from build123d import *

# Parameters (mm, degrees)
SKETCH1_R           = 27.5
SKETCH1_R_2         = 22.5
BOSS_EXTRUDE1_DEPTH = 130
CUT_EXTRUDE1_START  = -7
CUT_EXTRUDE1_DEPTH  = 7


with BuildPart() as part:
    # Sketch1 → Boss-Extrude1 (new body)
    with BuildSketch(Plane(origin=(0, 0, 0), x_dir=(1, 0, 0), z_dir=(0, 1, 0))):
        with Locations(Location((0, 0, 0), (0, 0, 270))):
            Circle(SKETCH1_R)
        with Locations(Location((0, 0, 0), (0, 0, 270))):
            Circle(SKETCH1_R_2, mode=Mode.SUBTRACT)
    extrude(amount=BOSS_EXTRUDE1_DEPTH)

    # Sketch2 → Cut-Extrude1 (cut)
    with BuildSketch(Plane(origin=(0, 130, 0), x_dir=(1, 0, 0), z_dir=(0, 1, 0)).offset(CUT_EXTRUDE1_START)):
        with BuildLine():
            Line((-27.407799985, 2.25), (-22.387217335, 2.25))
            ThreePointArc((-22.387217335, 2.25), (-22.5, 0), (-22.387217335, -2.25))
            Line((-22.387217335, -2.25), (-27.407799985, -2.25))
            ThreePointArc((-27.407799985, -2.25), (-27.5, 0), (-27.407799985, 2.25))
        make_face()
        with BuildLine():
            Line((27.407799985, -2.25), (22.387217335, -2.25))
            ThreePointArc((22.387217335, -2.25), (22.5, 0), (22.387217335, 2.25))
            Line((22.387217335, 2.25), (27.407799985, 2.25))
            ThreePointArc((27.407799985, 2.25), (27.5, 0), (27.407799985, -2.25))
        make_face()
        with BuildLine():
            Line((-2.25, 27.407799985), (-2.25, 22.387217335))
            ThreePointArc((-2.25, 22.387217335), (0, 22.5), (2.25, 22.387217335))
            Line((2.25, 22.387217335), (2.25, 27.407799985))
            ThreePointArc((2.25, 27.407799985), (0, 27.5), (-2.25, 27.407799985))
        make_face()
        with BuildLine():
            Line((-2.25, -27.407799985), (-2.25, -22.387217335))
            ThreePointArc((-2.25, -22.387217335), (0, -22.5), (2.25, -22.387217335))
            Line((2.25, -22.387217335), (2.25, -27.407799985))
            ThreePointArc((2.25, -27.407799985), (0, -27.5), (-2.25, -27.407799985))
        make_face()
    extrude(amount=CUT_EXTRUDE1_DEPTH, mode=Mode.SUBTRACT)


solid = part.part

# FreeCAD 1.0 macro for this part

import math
import FreeCAD as App
import Part
import Sketcher

V = App.Vector
Q = App.Units.Quantity

doc = App.newDocument("Part")
body = doc.addObject("PartDesign::Body", "Body")

# Sketch on XZ plane
sketch1 = doc.addObject("Sketcher::SketchObject", "Sketch")
body.addObject(sketch1)
sketch1.AttachmentSupport = (doc.XZ_Plane, [""])
sketch1.MapMode = "FlatFace"
sketch1.addGeometry(Part.Circle(V(0, 0, 0), V(0, 0, 1), 27.5), False)
sketch1.addGeometry(Part.Circle(V(0, 0, 0), V(0, 0, 1), 22.5), False)
sketch1.addConstraint(Sketcher.Constraint("Coincident", 0, 3, -1, 1))
sketch1.addConstraint(Sketcher.Constraint("Coincident", 1, 3, -1, 1))
sketch1.addConstraint(Sketcher.Constraint("Diameter", 0, Q("55 mm")))
sketch1.addConstraint(Sketcher.Constraint("Diameter", 1, Q("45 mm")))
pad1 = doc.addObject("PartDesign::Pad", "Pad")
body.addObject(pad1)
pad1.Profile = sketch1
pad1.Length = 130
pad1.Reversed = True

# Sketch on XZ plane
sketch2 = doc.addObject("Sketcher::SketchObject", "Sketch001")
body.addObject(sketch2)
sketch2.AttachmentSupport = (doc.XZ_Plane, [""])
sketch2.MapMode = "FlatFace"
sketch2.AttachmentOffset = App.Placement(V(0, 0, -123), App.Rotation())
sketch2.addGeometry(Part.LineSegment(V(-22.387217, -2.25, 0), V(-27.4078, -2.25, 0)), False)
sketch2.addGeometry(Part.ArcOfCircle(Part.Circle(V(0, 0, 0), V(0, 0, 1), 27.5), math.radians(175.306917), math.radians(184.693083)), False)
sketch2.addGeometry(Part.LineSegment(V(-27.4078, 2.25, 0), V(-22.387217, 2.25, 0)), False)
sketch2.addGeometry(Part.ArcOfCircle(Part.Circle(V(0, 0, 0), V(0, 0, 1), 22.5), math.radians(174.26083), math.radians(185.73917)), False)
sketch2.addGeometry(Part.LineSegment(V(22.387217, 2.25, 0), V(27.4078, 2.25, 0)), False)
sketch2.addGeometry(Part.ArcOfCircle(Part.Circle(V(0, 0, 0), V(0, 0, 1), 27.5), math.radians(-4.693083), math.radians(4.693083)), False)
sketch2.addGeometry(Part.LineSegment(V(27.4078, -2.25, 0), V(22.387217, -2.25, 0)), False)
sketch2.addGeometry(Part.ArcOfCircle(Part.Circle(V(0, 0, 0), V(0, 0, 1), 22.5), math.radians(-5.73917), math.radians(5.73917)), False)
sketch2.addGeometry(Part.LineSegment(V(-2.25, -27.4078, 0), V(-2.25, -22.387217, 0)), False)
sketch2.addGeometry(Part.ArcOfCircle(Part.Circle(V(0, 0, 0), V(0, 0, 1), 22.5), math.radians(-95.73917), math.radians(-84.26083)), False)
sketch2.addGeometry(Part.LineSegment(V(2.25, -22.387217, 0), V(2.25, -27.4078, 0)), False)
sketch2.addGeometry(Part.ArcOfCircle(Part.Circle(V(0, 0, 0), V(0, 0, 1), 27.5), math.radians(-94.693083), math.radians(-85.306917)), False)
sketch2.addGeometry(Part.LineSegment(V(-2.25, 22.387217, 0), V(-2.25, 27.4078, 0)), False)
sketch2.addGeometry(Part.ArcOfCircle(Part.Circle(V(0, 0, 0), V(0, 0, 1), 27.5), math.radians(85.306917), math.radians(94.693083)), False)
sketch2.addGeometry(Part.LineSegment(V(2.25, 27.4078, 0), V(2.25, 22.387217, 0)), False)
sketch2.addGeometry(Part.ArcOfCircle(Part.Circle(V(0, 0, 0), V(0, 0, 1), 22.5), math.radians(84.26083), math.radians(95.73917)), False)
sketch2.addConstraint(Sketcher.Constraint("Coincident", 0, 2, 1, 2))
sketch2.addConstraint(Sketcher.Constraint("Coincident", 1, 1, 2, 1))
sketch2.addConstraint(Sketcher.Constraint("Coincident", 2, 2, 3, 1))
sketch2.addConstraint(Sketcher.Constraint("Coincident", 3, 2, 0, 1))
sketch2.addConstraint(Sketcher.Constraint("Coincident", 4, 2, 5, 2))
sketch2.addConstraint(Sketcher.Constraint("Coincident", 5, 1, 6, 1))
sketch2.addConstraint(Sketcher.Constraint("Coincident", 6, 2, 7, 1))
sketch2.addConstraint(Sketcher.Constraint("Coincident", 7, 2, 4, 1))
sketch2.addConstraint(Sketcher.Constraint("Coincident", 8, 2, 9, 1))
sketch2.addConstraint(Sketcher.Constraint("Coincident", 9, 2, 10, 1))
sketch2.addConstraint(Sketcher.Constraint("Coincident", 10, 2, 11, 2))
sketch2.addConstraint(Sketcher.Constraint("Coincident", 11, 1, 8, 1))
sketch2.addConstraint(Sketcher.Constraint("Coincident", 12, 2, 13, 2))
sketch2.addConstraint(Sketcher.Constraint("Coincident", 13, 1, 14, 1))
sketch2.addConstraint(Sketcher.Constraint("Coincident", 14, 2, 15, 1))
sketch2.addConstraint(Sketcher.Constraint("Coincident", 15, 2, 12, 1))
sketch2.addConstraint(Sketcher.Constraint("Horizontal", 0))
sketch2.addConstraint(Sketcher.Constraint("Horizontal", 2))
sketch2.addConstraint(Sketcher.Constraint("Horizontal", 4))
sketch2.addConstraint(Sketcher.Constraint("Horizontal", 6))
sketch2.addConstraint(Sketcher.Constraint("Vertical", 8))
sketch2.addConstraint(Sketcher.Constraint("Vertical", 10))
sketch2.addConstraint(Sketcher.Constraint("Vertical", 12))
sketch2.addConstraint(Sketcher.Constraint("Vertical", 14))
sketch2.addConstraint(Sketcher.Constraint("Coincident", 1, 3, -1, 1))
sketch2.addConstraint(Sketcher.Constraint("Coincident", 3, 3, -1, 1))
sketch2.addConstraint(Sketcher.Constraint("Coincident", 5, 3, -1, 1))
sketch2.addConstraint(Sketcher.Constraint("Coincident", 7, 3, -1, 1))
sketch2.addConstraint(Sketcher.Constraint("Coincident", 9, 3, -1, 1))
sketch2.addConstraint(Sketcher.Constraint("Coincident", 11, 3, -1, 1))
sketch2.addConstraint(Sketcher.Constraint("Coincident", 13, 3, -1, 1))
sketch2.addConstraint(Sketcher.Constraint("Coincident", 15, 3, -1, 1))
sketch2.addConstraint(Sketcher.Constraint("Equal", 1, 5))
sketch2.addConstraint(Sketcher.Constraint("Equal", 3, 7))
sketch2.addConstraint(Sketcher.Constraint("Equal", 7, 9))
sketch2.addConstraint(Sketcher.Constraint("Equal", 5, 11))
sketch2.addConstraint(Sketcher.Constraint("Equal", 11, 13))
sketch2.addConstraint(Sketcher.Constraint("Equal", 9, 15))
sketch2.addConstraint(Sketcher.Constraint("Horizontal", 2, 2, 4, 2))
sketch2.addConstraint(Sketcher.Constraint("Horizontal", 3, 2, 5, 1))
sketch2.addConstraint(Sketcher.Constraint("Horizontal", 8, 2, 9, 2))
sketch2.addConstraint(Sketcher.Constraint("Horizontal", 12, 2, 13, 1))
sketch2.addConstraint(Sketcher.Constraint("Vertical", 0, 2, 1, 1))
sketch2.addConstraint(Sketcher.Constraint("Vertical", 11, 1, 12, 2))
sketch2.addConstraint(Sketcher.Constraint("Equal", 6, 8))
sketch2.addConstraint(Sketcher.Constraint("Radius", 1, Q("27.5 mm")))
sketch2.addConstraint(Sketcher.Constraint("Radius", 3, Q("22.5 mm")))
sketch2.addConstraint(Sketcher.Constraint("DistanceY", 0, 2, 1, 1, Q("4.5 mm")))
pocket1 = doc.addObject("PartDesign::Pocket", "Pocket")
body.addObject(pocket1)
pocket1.Profile = sketch2
pocket1.Length = 7

doc.recompute()
